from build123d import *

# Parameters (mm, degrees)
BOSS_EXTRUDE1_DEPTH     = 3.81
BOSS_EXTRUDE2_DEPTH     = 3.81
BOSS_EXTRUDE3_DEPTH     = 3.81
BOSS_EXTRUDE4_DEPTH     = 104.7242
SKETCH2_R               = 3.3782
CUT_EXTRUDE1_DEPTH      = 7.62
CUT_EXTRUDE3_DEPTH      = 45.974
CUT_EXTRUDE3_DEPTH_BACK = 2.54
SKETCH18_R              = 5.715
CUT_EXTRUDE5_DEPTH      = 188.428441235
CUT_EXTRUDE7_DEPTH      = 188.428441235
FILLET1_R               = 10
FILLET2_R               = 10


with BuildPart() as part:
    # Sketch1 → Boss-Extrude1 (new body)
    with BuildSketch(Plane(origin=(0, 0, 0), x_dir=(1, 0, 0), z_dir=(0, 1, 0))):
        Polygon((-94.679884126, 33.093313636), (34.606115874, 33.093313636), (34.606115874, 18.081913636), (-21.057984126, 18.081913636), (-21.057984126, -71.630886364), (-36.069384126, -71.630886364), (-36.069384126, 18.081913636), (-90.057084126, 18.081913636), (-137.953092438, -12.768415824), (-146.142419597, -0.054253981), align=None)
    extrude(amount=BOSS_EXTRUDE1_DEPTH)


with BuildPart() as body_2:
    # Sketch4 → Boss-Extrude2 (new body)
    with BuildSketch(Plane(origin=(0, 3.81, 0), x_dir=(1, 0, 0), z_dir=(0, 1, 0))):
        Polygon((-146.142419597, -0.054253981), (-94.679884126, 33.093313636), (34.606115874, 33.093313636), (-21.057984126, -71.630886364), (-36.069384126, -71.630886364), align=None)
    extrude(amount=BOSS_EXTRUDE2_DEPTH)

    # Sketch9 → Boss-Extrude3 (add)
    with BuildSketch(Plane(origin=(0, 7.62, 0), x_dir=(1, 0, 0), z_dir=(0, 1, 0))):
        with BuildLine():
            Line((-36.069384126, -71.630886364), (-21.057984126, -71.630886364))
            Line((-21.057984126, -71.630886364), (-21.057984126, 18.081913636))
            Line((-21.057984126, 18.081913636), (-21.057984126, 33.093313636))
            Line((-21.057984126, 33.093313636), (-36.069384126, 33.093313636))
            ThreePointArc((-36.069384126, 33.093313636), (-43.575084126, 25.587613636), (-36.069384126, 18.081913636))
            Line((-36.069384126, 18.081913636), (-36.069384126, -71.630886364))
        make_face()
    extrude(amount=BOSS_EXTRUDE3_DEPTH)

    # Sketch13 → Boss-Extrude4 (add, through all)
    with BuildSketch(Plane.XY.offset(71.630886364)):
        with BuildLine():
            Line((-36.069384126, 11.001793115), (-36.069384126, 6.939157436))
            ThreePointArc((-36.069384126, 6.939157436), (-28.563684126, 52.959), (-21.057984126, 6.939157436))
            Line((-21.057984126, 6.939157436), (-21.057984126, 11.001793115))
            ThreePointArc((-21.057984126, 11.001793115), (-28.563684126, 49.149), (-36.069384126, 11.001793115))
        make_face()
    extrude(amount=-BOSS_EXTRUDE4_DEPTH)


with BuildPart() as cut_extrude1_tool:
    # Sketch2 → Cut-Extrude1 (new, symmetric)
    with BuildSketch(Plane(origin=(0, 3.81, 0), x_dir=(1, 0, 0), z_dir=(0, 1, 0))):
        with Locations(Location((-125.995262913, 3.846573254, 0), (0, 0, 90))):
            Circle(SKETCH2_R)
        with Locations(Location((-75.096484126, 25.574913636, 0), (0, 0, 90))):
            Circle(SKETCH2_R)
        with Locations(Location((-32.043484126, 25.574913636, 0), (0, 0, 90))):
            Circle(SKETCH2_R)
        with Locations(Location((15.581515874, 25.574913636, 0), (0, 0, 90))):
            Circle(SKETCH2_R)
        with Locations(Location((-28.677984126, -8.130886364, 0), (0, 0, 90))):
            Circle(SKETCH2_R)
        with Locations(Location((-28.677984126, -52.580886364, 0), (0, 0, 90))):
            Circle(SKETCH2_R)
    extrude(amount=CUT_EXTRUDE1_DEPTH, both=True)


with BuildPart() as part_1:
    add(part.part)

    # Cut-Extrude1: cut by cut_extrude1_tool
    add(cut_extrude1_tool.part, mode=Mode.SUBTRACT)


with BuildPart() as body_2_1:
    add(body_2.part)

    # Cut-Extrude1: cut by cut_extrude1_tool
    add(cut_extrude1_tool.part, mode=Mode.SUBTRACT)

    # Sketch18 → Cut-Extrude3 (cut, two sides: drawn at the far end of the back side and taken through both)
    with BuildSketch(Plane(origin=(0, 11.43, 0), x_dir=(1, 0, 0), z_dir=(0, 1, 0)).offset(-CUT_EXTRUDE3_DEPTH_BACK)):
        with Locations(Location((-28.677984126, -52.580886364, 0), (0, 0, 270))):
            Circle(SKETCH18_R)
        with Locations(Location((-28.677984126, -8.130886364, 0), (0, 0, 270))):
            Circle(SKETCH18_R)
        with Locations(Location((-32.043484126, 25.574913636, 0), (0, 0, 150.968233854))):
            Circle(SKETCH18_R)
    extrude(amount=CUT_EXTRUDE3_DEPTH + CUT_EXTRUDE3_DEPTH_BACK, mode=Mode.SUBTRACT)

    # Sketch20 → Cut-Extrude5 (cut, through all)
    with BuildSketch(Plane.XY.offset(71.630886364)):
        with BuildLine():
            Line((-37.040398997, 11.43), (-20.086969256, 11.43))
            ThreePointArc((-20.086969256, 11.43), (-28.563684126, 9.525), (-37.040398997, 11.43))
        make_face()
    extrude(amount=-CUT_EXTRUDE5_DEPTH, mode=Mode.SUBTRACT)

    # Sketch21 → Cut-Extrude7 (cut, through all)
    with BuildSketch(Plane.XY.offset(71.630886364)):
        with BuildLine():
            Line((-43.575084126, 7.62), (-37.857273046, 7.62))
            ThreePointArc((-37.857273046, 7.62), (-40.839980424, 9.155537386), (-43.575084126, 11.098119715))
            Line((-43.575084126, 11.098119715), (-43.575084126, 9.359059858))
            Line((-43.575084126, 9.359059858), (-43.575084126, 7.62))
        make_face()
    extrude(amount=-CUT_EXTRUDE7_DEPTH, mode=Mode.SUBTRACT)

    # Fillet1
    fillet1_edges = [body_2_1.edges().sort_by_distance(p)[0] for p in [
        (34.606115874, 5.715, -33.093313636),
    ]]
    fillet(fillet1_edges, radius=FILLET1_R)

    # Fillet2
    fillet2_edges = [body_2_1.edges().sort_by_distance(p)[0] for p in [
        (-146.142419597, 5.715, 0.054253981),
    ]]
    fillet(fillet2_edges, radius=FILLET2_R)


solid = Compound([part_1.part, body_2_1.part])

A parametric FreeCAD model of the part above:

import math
import FreeCAD as App
import Part
import Sketcher
Q = App.Units.Quantity


def edges_at(feature, points):
    """Names of the edges that pass closest to the given points."""
    edges = feature.Shape.Edges
    near = lambda p: min(range(len(edges)), key=lambda i: edges[i].distToShape(Part.Vertex(*p))[0])
    return sorted({f"Edge{near(p) + 1}" for p in points})

doc = App.newDocument("Part")
body = doc.addObject("PartDesign::Body", "Body")

# Sketch on XZ plane
sketch1 = body.newObject("Sketcher::SketchObject", "Sketch")
sketch1.AttachmentSupport = (doc.getObject("XZ_Plane"), [""])
sketch1.MapMode = "FlatFace"
sketch1.addGeometry([
    Part.LineSegment(App.Vector(34.606116, -33.093314, 0), App.Vector(-94.679884, -33.093314, 0)),  # 0
    Part.LineSegment(App.Vector(-94.679884, -33.093314, 0), App.Vector(-146.14242, 0.054254, 0)),  # 1
    Part.LineSegment(App.Vector(-146.14242, 0.054254, 0), App.Vector(-137.953092, 12.768416, 0)),  # 2
    Part.LineSegment(App.Vector(-137.953092, 12.768416, 0), App.Vector(-90.057084, -18.081914, 0)),  # 3
    Part.LineSegment(App.Vector(-90.057084, -18.081914, 0), App.Vector(-36.069384, -18.081914, 0)),  # 4
    Part.LineSegment(App.Vector(-36.069384, -18.081914, 0), App.Vector(-36.069384, 71.630886, 0)),  # 5
    Part.LineSegment(App.Vector(-36.069384, 71.630886, 0), App.Vector(-21.057984, 71.630886, 0)),  # 6
    Part.LineSegment(App.Vector(-21.057984, 71.630886, 0), App.Vector(-21.057984, -18.081914, 0)),  # 7
    Part.LineSegment(App.Vector(-21.057984, -18.081914, 0), App.Vector(34.606116, -18.081914, 0)),  # 8
    Part.LineSegment(App.Vector(34.606116, -18.081914, 0), App.Vector(34.606116, -33.093314, 0)),  # 9
], False)
sketch1.addConstraint([
    Sketcher.Constraint("Coincident", 0, 2, 1, 1),
    Sketcher.Constraint("Coincident", 1, 2, 2, 1),
    Sketcher.Constraint("Coincident", 2, 2, 3, 1),
    Sketcher.Constraint("Coincident", 3, 2, 4, 1),
    Sketcher.Constraint("Coincident", 4, 2, 5, 1),
    Sketcher.Constraint("Coincident", 5, 2, 6, 1),
    Sketcher.Constraint("Coincident", 6, 2, 7, 1),
    Sketcher.Constraint("Coincident", 7, 2, 8, 1),
    Sketcher.Constraint("Coincident", 8, 2, 9, 1),
    Sketcher.Constraint("Coincident", 9, 2, 0, 1),
    Sketcher.Constraint("Horizontal", 0),
    Sketcher.Constraint("Horizontal", 4),
    Sketcher.Constraint("Vertical", 5),
    Sketcher.Constraint("Horizontal", 6),
    Sketcher.Constraint("Vertical", 7),
    Sketcher.Constraint("Horizontal", 8),
    Sketcher.Constraint("Vertical", 9),
    Sketcher.Constraint("Perpendicular", 1, 2),
    Sketcher.Constraint("Perpendicular", 2, 3),
    Sketcher.Constraint("Horizontal", 4, 2, 7, 2),
    Sketcher.Constraint("Equal", 6, 9),
    Sketcher.Constraint("DistanceX", 0, 2, 0, 1, Q("5.09 in")),
    Sketcher.Constraint("Distance", 1, Q("2.41 in")),
    Sketcher.Constraint("DistanceX", 6, 1, 6, 2, Q("0.591 in")),
    Sketcher.Constraint("DistanceY", 5, 1, 5, 2, Q("3.532 in")),
    Sketcher.Constraint("DistanceX", 4, 1, 4, 2, Q("2.1255 in")),
    Sketcher.Constraint("DistanceX", 8, 1, 8, 2, Q("2.1915 in")),
    Sketcher.Constraint("DistanceX", 1, 2, -1, 1, Q("146.14242 mm")),
    Sketcher.Constraint("DistanceY", 1, 2, 2, 2, Q("12.714162 mm")),
    Sketcher.Constraint("DistanceY", 0, 2, -1, 1, Q("33.093314 mm")),
])
pad1 = body.newObject("PartDesign::Pad", "Pad")
pad1.Profile = sketch1
pad1.Length = Q("0.15 in")
pad1.Reversed = True
body2 = doc.addObject("PartDesign::Body", "Body001")

# Sketch on XZ plane
sketch2 = body2.newObject("Sketcher::SketchObject", "Sketch001")
sketch2.AttachmentSupport = (doc.getObject("XZ_Plane001"), [""])
sketch2.MapMode = "FlatFace"
sketch2.AttachmentOffset = App.Placement(App.Vector(0, 0, -0.15 * 25.4), App.Rotation())
sketch2.addGeometry([
    Part.LineSegment(App.Vector(-94.679884, -33.093314, 0), App.Vector(-146.14242, 0.054254, 0)),  # 0
    Part.LineSegment(App.Vector(-146.14242, 0.054254, 0), App.Vector(-36.069384, 71.630886, 0)),  # 1
    Part.LineSegment(App.Vector(-36.069384, 71.630886, 0), App.Vector(-21.057984, 71.630886, 0)),  # 2
    Part.LineSegment(App.Vector(-21.057984, 71.630886, 0), App.Vector(34.606116, -33.093314, 0)),  # 3
    Part.LineSegment(App.Vector(34.606116, -33.093314, 0), App.Vector(-94.679884, -33.093314, 0)),  # 4
], False)
sketch2.addConstraint([
    Sketcher.Constraint("Coincident", 0, 2, 1, 1),
    Sketcher.Constraint("Coincident", 1, 2, 2, 1),
    Sketcher.Constraint("Coincident", 2, 2, 3, 1),
    Sketcher.Constraint("Coincident", 3, 2, 4, 1),
    Sketcher.Constraint("Coincident", 4, 2, 0, 1),
    Sketcher.Constraint("Horizontal", 2),
    Sketcher.Constraint("Horizontal", 4),
    Sketcher.Constraint("DistanceX", 4, 2, 4, 1, Q("5.09 in")),
    Sketcher.Constraint("Distance", 0, Q("2.41 in")),
    Sketcher.Constraint("DistanceX", 2, 1, 2, 2, Q("0.591 in")),
    Sketcher.Constraint("DistanceY", 3, 2, 2, 2, Q("4.123 in")),
    Sketcher.Constraint("DistanceX", 2, 2, 3, 2, Q("2.1915 in")),
    Sketcher.Constraint("DistanceX", 0, 2, -1, 1, Q("146.14242 mm")),
    Sketcher.Constraint("Distance", 1, Q("131.298467 mm")),
    Sketcher.Constraint("DistanceY", -1, 1, 0, 2, Q("0.054254 mm")),
])
pad2 = body2.newObject("PartDesign::Pad", "Pad001")
pad2.Profile = sketch2
pad2.Length = Q("0.15 in")
pad2.Reversed = True

# Sketch on XZ plane
sketch3 = body2.newObject("Sketcher::SketchObject", "Sketch002")
sketch3.AttachmentSupport = (doc.getObject("XZ_Plane001"), [""])
sketch3.MapMode = "FlatFace"
sketch3.AttachmentOffset = App.Placement(App.Vector(0, 0, -0.3 * 25.4), App.Rotation())
sketch3.addGeometry([
    Part.LineSegment(App.Vector(-36.069384, 71.630886, 0), App.Vector(-21.057984, 71.630886, 0)),  # 0
    Part.LineSegment(App.Vector(-21.057984, 71.630886, 0), App.Vector(-21.057984, -33.093314, 0)),  # 1
    Part.LineSegment(App.Vector(-21.057984, -33.093314, 0), App.Vector(-36.069384, -33.093314, 0)),  # 2
    Part.ArcOfCircle(Part.Circle(App.Vector(-36.069384, -25.587614, 0), App.Vector(0, 0, 1), 7.5057), math.radians(90), math.radians(270)),  # 3
    Part.LineSegment(App.Vector(-36.069384, -18.081914, 0), App.Vector(-36.069384, 71.630886, 0)),  # 4
], False)
sketch3.addConstraint([
    Sketcher.Constraint("Coincident", 0, 2, 1, 1),
    Sketcher.Constraint("Coincident", 1, 2, 2, 1),
    Sketcher.Constraint("Tangent", 2, 2, 3, 2),
    Sketcher.Constraint("Coincident", 3, 1, 4, 1),
    Sketcher.Constraint("Coincident", 4, 2, 0, 1),
    Sketcher.Constraint("Horizontal", 0),
    Sketcher.Constraint("Vertical", 1),
    Sketcher.Constraint("Horizontal", 2),
    Sketcher.Constraint("Vertical", 4),
    Sketcher.Constraint("Vertical", 2, 2, 3, 1),
    Sketcher.Constraint("Radius", 3, Q("0.2955 in")),
    Sketcher.Constraint("DistanceX", 0, 1, 0, 2, Q("0.591 in")),
    Sketcher.Constraint("DistanceY", 1, 2, 1, 1, Q("4.123 in")),
    Sketcher.Constraint("DistanceX", 3, 3, -1, 1, Q("36.069384 mm")),
    Sketcher.Constraint("DistanceY", 3, 3, -1, 1, Q("25.587614 mm")),
])
pad3 = body2.newObject("PartDesign::Pad", "Pad002")
pad3.Profile = sketch3
pad3.Length = Q("0.15 in")
pad3.Reversed = True

# Sketch on XY plane
sketch4 = body2.newObject("Sketcher::SketchObject", "Sketch003")
sketch4.AttachmentSupport = (doc.getObject("XY_Plane001"), [""])
sketch4.MapMode = "FlatFace"
sketch4.AttachmentOffset = App.Placement(App.Vector(0, 0, 71.630886), App.Rotation())
sketch4.addGeometry([
    Part.LineSegment(App.Vector(-36.069384, 6.939157, 0), App.Vector(-36.069384, 11.001793, 0)),
    Part.ArcOfCircle(Part.Circle(App.Vector(-28.563684, 29.337, 0), App.Vector(0, 0, 1), 19.812), math.radians(-67.737771), math.radians(247.737771)),
    Part.LineSegment(App.Vector(-21.057984, 11.001793, 0), App.Vector(-21.057984, 6.939157, 0)),
    Part.ArcOfCircle(Part.Circle(App.Vector(-28.563684, 29.337, 0), App.Vector(0, 0, 1), 23.622), math.radians(-71.473578), math.radians(251.473578)),
], False)
sketch4.addConstraint([
    Sketcher.Constraint("Coincident", 0, 2, 1, 2),
    Sketcher.Constraint("Coincident", 1, 1, 2, 1),
    Sketcher.Constraint("Coincident", 2, 2, 3, 1),
    Sketcher.Constraint("Coincident", 3, 2, 0, 1),
    Sketcher.Constraint("Vertical", 0),
    Sketcher.Constraint("Vertical", 2),
    Sketcher.Constraint("Coincident", 3, 3, 1, 3),
    Sketcher.Constraint("Horizontal", 0, 2, 1, 1),
    Sketcher.Constraint("Radius", 1, Q("0.78 in")),
    Sketcher.Constraint("Radius", 3, Q("0.93 in")),
    Sketcher.Constraint("DistanceY", -1, 1, 1, 3, Q("1.155 in")),
    Sketcher.Constraint("DistanceX", 0, 2, 1, 1, Q("0.591 in")),
    Sketcher.Constraint("DistanceX", 1, 3, -1, 1, Q("28.563684 mm")),
])
pad4 = body2.newObject("PartDesign::Pad", "Pad003")
pad4.Profile = sketch4
pad4.Length = Q("4.123 in")
pad4.Reversed = True
body3 = doc.addObject("PartDesign::Body", "Body002")
body3.AllowCompound = True

# Sketch on XZ plane
sketch5 = body3.newObject("Sketcher::SketchObject", "Sketch004")
sketch5.AttachmentSupport = (doc.getObject("XZ_Plane002"), [""])
sketch5.MapMode = "FlatFace"
sketch5.AttachmentOffset = App.Placement(App.Vector(0, 0, -0.15 * 25.4), App.Rotation())
sketch5.addGeometry([
    Part.Circle(App.Vector(-125.995263, -3.846573, 0), App.Vector(0, 0, 1), 3.3782),  # 0
    Part.Circle(App.Vector(-75.096484, -25.574914, 0), App.Vector(0, 0, 1), 3.3782),  # 1
    Part.Circle(App.Vector(-32.043484, -25.574914, 0), App.Vector(0, 0, 1), 3.3782),  # 2
    Part.Circle(App.Vector(15.581516, -25.574914, 0), App.Vector(0, 0, 1), 3.3782),  # 3
    Part.Circle(App.Vector(-28.677984, 8.130886, 0), App.Vector(0, 0, 1), 3.3782),  # 4
    Part.Circle(App.Vector(-28.677984, 52.580886, 0), App.Vector(0, 0, 1), 3.3782),  # 5
], False)
sketch5.addConstraint([
    Sketcher.Constraint("Equal", 0, 1),
    Sketcher.Constraint("Equal", 1, 2),
    Sketcher.Constraint("Equal", 2, 3),
    Sketcher.Constraint("Equal", 3, 4),
    Sketcher.Constraint("Equal", 4, 5),
    Sketcher.Constraint("Horizontal", 1, 3, 2, 3),
    Sketcher.Constraint("Horizontal", 2, 3, 3, 3),
    Sketcher.Constraint("Vertical", 4, 3, 5, 3),
    Sketcher.Constraint("Diameter", 0, Q("0.266 in")),
    Sketcher.Constraint("DistanceX", 1, 3, 3, 3, Q("3.57 in")),
    Sketcher.Constraint("DistanceY", 4, 3, 5, 3, Q("1.75 in")),
    Sketcher.Constraint("DistanceX", 1, 3, 2, 3, Q("1.695 in")),
    Sketcher.Constraint("DistanceY", 2, 3, 4, 3, Q("1.327 in")),
    Sketcher.Constraint("DistanceX", 2, 3, 4, 3, Q("0.1325 in")),
    Sketcher.Constraint("DistanceX", 0, 3, 1, 3, Q("50.898779 mm")),
    Sketcher.Constraint("DistanceY", 1, 3, 0, 3, Q("21.72834 mm")),
    Sketcher.Constraint("DistanceX", 0, 3, -1, 1, Q("125.995263 mm")),
    Sketcher.Constraint("DistanceY", 0, 3, -1, 1, Q("3.846573 mm")),
])
pad5 = body3.newObject("PartDesign::Pad", "Pad004")
pad5.Profile = sketch5
pad5.Length = Q("0.6 in")
pad5.Midplane = True
doc.recompute()

body4 = doc.addObject("PartDesign::Body", "Body003")
body4.BaseFeature = body3
boolean = body.newObject("PartDesign::Boolean", "Boolean")
boolean.Type = "Cut"
boolean.addObjects([body4])
doc.recompute()

boolean2 = body2.newObject("PartDesign::Boolean", "Boolean001")
boolean2.Type = "Cut"
boolean2.addObjects([body3])

# Sketch on XZ plane
sketch6 = body2.newObject("Sketcher::SketchObject", "Sketch005")
sketch6.AttachmentSupport = (doc.getObject("XZ_Plane001"), [""])
sketch6.MapMode = "FlatFace"
sketch6.AttachmentOffset = App.Placement(App.Vector(0, 0, -0.45 * 25.4), App.Rotation())
sketch6.addGeometry([
    Part.Circle(App.Vector(-28.677984, 52.580886, 0), App.Vector(0, 0, 1), 5.715),
    Part.Circle(App.Vector(-28.677984, 8.130886, 0), App.Vector(0, 0, 1), 5.715),
    Part.Circle(App.Vector(-32.043484, -25.574914, 0), App.Vector(0, 0, 1), 5.715),
], False)
sketch6.addConstraint([
    Sketcher.Constraint("Equal", 0, 1),
    Sketcher.Constraint("Equal", 1, 2),
    Sketcher.Constraint("Vertical", 0, 3, 1, 3),
    Sketcher.Constraint("Diameter", 0, Q("0.45 in")),
    Sketcher.Constraint("DistanceY", 1, 3, 0, 3, Q("1.75 in")),
    Sketcher.Constraint("DistanceY", 2, 3, 1, 3, Q("1.327 in")),
    Sketcher.Constraint("DistanceX", 2, 3, 1, 3, Q("0.1325 in")),
    Sketcher.Constraint("DistanceX", 0, 3, -1, 1, Q("28.677984 mm")),
    Sketcher.Constraint("DistanceY", -1, 1, 0, 3, Q("52.580886 mm")),
])
pocket1 = body2.newObject("PartDesign::Pocket", "Pocket")
pocket1.Profile = sketch6
pocket1.Type = "TwoLengths"
pocket1.Length = Q("1.81 in")
pocket1.Length2 = Q("0.1 in")

# Sketch on XY plane
sketch7 = body2.newObject("Sketcher::SketchObject", "Sketch006")
sketch7.AttachmentSupport = (doc.getObject("XY_Plane001"), [""])
sketch7.MapMode = "FlatFace"
sketch7.AttachmentOffset = App.Placement(App.Vector(0, 0, 71.630886), App.Rotation())
sketch7.addGeometry([
    Part.LineSegment(App.Vector(-20.086969, 11.43, 0), App.Vector(-37.040399, 11.43, 0)),
    Part.ArcOfCircle(Part.Circle(App.Vector(-28.563684, 29.337, 0), App.Vector(0, 0, 1), 19.812), math.radians(-115.331675), math.radians(-64.668325)),
], False)
sketch7.addConstraint([
    Sketcher.Constraint("Coincident", 0, 1, 1, 2),
    Sketcher.Constraint("Coincident", 1, 1, 0, 2),
    Sketcher.Constraint("Horizontal", 0),
    Sketcher.Constraint("Radius", 1, Q("0.78 in")),
    Sketcher.Constraint("DistanceY", -1, 1, 0, 1, Q("0.45 in")),
    Sketcher.Constraint("DistanceY", -1, 1, 1, 3, Q("1.155 in")),
    Sketcher.Constraint("DistanceX", 1, 1, -1, 1, Q("37.040399 mm")),
])
pocket2 = body2.newObject("PartDesign::Pocket", "Pocket001")
pocket2.Profile = sketch7
pocket2.Type = "ThroughAll"

# Sketch on XY plane
sketch8 = body2.newObject("Sketcher::SketchObject", "Sketch007")
sketch8.AttachmentSupport = (doc.getObject("XY_Plane001"), [""])
sketch8.MapMode = "FlatFace"
sketch8.AttachmentOffset = App.Placement(App.Vector(0, 0, 71.630886), App.Rotation())
sketch8.addGeometry([
    Part.LineSegment(App.Vector(-43.575084, 7.62, 0), App.Vector(-37.857273, 7.62, 0)),
    Part.ArcOfCircle(Part.Circle(App.Vector(-28.563684, 29.337, 0), App.Vector(0, 0, 1), 23.622), math.radians(-129.455882), math.radians(-113.168055)),
    Part.LineSegment(App.Vector(-43.575084, 11.09812, 0), App.Vector(-43.575084, 7.62, 0)),
], False)
sketch8.addConstraint([
    Sketcher.Constraint("Coincident", 0, 2, 1, 2),
    Sketcher.Constraint("Coincident", 1, 1, 2, 1),
    Sketcher.Constraint("Coincident", 2, 2, 0, 1),
    Sketcher.Constraint("Horizontal", 0),
    Sketcher.Constraint("Vertical", 2),
    Sketcher.Constraint("Radius", 1, Q("0.93 in")),
    Sketcher.Constraint("DistanceY", -1, 1, 0, 2, Q("0.3 in")),
    Sketcher.Constraint("DistanceY", -1, 1, 1, 3, Q("1.155 in")),
    Sketcher.Constraint("DistanceX", 1, 1, 1, 3, Q("0.591 in")),
    Sketcher.Constraint("DistanceX", 1, 3, -1, 1, Q("28.563684 mm")),
])
pocket3 = body2.newObject("PartDesign::Pocket", "Pocket002")
pocket3.Profile = sketch8
pocket3.Type = "ThroughAll"
doc.recompute()

fillet = body2.newObject("PartDesign::Fillet", "Fillet")
fillet.Base = (pocket3, edges_at(pocket3, [(34.606, 5.715, -33.093)]))
fillet.Radius = 10
doc.recompute()

fillet2 = body2.newObject("PartDesign::Fillet", "Fillet001")
fillet2.Base = (fillet, edges_at(fillet, [(-146.142, 5.715, 0.054)]))
fillet2.Radius = 10

doc.recompute()
